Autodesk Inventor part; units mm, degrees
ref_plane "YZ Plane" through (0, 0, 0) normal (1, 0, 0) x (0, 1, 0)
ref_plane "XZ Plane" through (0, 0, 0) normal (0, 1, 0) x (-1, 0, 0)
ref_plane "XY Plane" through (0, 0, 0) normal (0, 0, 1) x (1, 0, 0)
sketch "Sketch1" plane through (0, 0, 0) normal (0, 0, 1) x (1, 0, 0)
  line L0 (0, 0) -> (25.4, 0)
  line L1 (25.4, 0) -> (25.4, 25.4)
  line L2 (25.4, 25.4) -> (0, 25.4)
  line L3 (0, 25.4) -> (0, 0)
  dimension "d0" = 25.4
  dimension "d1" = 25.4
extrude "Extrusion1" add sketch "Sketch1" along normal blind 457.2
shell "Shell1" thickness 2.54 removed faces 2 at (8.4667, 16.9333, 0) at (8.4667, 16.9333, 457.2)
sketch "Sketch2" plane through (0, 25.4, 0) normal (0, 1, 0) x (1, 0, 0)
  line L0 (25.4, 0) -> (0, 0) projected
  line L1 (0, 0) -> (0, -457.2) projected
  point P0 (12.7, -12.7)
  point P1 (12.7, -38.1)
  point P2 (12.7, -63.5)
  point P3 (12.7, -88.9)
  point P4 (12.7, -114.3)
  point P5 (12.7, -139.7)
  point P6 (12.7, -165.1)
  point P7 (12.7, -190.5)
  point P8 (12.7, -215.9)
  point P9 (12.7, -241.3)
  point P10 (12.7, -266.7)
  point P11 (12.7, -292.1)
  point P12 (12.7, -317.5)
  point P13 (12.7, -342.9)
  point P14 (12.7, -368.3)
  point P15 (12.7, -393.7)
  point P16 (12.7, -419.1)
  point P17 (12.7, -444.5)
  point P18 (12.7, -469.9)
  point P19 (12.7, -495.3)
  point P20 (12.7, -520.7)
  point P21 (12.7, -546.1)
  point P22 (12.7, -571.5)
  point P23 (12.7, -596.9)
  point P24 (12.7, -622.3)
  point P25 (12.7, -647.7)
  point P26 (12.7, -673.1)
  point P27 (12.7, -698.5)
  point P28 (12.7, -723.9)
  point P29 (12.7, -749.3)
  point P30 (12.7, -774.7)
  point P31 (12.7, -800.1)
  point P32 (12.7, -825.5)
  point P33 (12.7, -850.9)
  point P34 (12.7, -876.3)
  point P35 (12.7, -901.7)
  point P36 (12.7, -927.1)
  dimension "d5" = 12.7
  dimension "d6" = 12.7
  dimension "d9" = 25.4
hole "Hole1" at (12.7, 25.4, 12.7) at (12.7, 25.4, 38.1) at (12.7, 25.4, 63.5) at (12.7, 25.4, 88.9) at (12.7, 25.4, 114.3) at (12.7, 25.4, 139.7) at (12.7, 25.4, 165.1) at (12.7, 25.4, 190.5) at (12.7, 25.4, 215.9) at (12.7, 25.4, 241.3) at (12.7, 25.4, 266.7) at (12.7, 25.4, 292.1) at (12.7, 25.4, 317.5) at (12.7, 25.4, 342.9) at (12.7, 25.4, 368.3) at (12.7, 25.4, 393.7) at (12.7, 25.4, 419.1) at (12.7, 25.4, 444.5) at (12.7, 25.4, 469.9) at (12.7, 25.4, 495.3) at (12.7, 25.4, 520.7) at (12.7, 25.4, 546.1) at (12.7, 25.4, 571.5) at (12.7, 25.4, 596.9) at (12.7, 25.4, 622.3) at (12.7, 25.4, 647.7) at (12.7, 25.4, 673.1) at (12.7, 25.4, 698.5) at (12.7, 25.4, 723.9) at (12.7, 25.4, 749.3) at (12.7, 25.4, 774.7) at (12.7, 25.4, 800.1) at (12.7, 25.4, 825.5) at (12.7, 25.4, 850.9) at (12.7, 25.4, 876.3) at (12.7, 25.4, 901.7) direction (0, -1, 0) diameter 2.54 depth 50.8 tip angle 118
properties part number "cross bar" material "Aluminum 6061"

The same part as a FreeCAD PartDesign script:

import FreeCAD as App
import Part
import Sketcher

V = App.Vector
Q = App.Units.Quantity


def faces_at(feature, points):
    """Names of the faces that lie closest to the given points."""
    faces = feature.Shape.Faces
    near = lambda p: min(range(len(faces)), key=lambda i: faces[i].distToShape(Part.Vertex(*p))[0])
    return sorted({f"Face{near(p) + 1}" for p in points})


def add_polygon(sketch, points):
    """Adds a closed chain of lines whose ends are joined by coincident constraints."""
    first, n = sketch.GeometryCount, len(points)
    for a, b in zip(points, points[1:] + points[:1]):
        sketch.addGeometry(Part.LineSegment(App.Vector(*a, 0), App.Vector(*b, 0)), False)
    for i in range(n):
        sketch.addConstraint(Sketcher.Constraint("Coincident", first + i, 2, first + (i + 1) % n, 1))

doc = App.newDocument("Part")
body = doc.addObject("PartDesign::Body", "Body")

# Sketch on XY plane
sketch1 = doc.addObject("Sketcher::SketchObject", "Sketch")
body.addObject(sketch1)
sketch1.AttachmentSupport = (doc.XY_Plane, [""])
sketch1.MapMode = "FlatFace"
add_polygon(sketch1, [(0, 25), (0, 0), (25, 0), (25, 25)])  # lines 0-3
sketch1.addConstraint(Sketcher.Constraint("Vertical", 0))
sketch1.addConstraint(Sketcher.Constraint("Horizontal", 1))
sketch1.addConstraint(Sketcher.Constraint("Vertical", 2))
sketch1.addConstraint(Sketcher.Constraint("Horizontal", 3))
sketch1.addConstraint(Sketcher.Constraint("Coincident", 0, 2, -1, 1))
sketch1.addConstraint(Sketcher.Constraint("Equal", 3, 0))
sketch1.addConstraint(Sketcher.Constraint("DistanceX", 1, 1, 1, 2, Q("1 in")))
pad1 = doc.addObject("PartDesign::Pad", "Pad")
body.addObject(pad1)
pad1.Profile = sketch1
pad1.Length = Q("18 in")
doc.recompute()

thickness = doc.addObject("PartDesign::Thickness", "Thickness")
body.addObject(thickness)
thickness.Base = (pad1, faces_at(pad1, [(8.467, 16.933, 0), (8.467, 16.933, 457.2)]))
thickness.Value = Q("0.1 in")
thickness.Reversed = True
thickness.Join = "Intersection"

# Sketch on XZ plane
sketch2 = doc.addObject("Sketcher::SketchObject", "Sketch001")
body.addObject(sketch2)
sketch2.AttachmentSupport = (doc.XZ_Plane, [""])
sketch2.MapMode = "FlatFace"
sketch2.AttachmentOffset = App.Placement(V(0, 0, -1 * 25.4), App.Rotation())
sketch2.addGeometry(Part.Circle(V(12.7, 12.7, 0), V(0, 0, 1), 1.3), False)
sketch2.addGeometry(Part.Circle(V(12.7, 38.1, 0), V(0, 0, 1), 1.3), False)
sketch2.addGeometry(Part.Circle(V(12.7, 63.5, 0), V(0, 0, 1), 1.3), False)
sketch2.addGeometry(Part.Circle(V(12.7, 88.9, 0), V(0, 0, 1), 1.3), False)
sketch2.addGeometry(Part.Circle(V(12.7, 114.3, 0), V(0, 0, 1), 1.3), False)
sketch2.addGeometry(Part.Circle(V(12.7, 139.7, 0), V(0, 0, 1), 1.3), False)
sketch2.addGeometry(Part.Circle(V(12.7, 165.1, 0), V(0, 0, 1), 1.3), False)
sketch2.addGeometry(Part.Circle(V(12.7, 190.5, 0), V(0, 0, 1), 1.3), False)
sketch2.addGeometry(Part.Circle(V(12.7, 215.9, 0), V(0, 0, 1), 1.3), False)
sketch2.addGeometry(Part.Circle(V(12.7, 241.3, 0), V(0, 0, 1), 1.3), False)
sketch2.addGeometry(Part.Circle(V(12.7, 266.7, 0), V(0, 0, 1), 1.3), False)
sketch2.addGeometry(Part.Circle(V(12.7, 292.1, 0), V(0, 0, 1), 1.3), False)
sketch2.addGeometry(Part.Circle(V(12.7, 317.5, 0), V(0, 0, 1), 1.3), False)
sketch2.addGeometry(Part.Circle(V(12.7, 342.9, 0), V(0, 0, 1), 1.3), False)
sketch2.addGeometry(Part.Circle(V(12.7, 368.3, 0), V(0, 0, 1), 1.3), False)
sketch2.addGeometry(Part.Circle(V(12.7, 393.7, 0), V(0, 0, 1), 1.3), False)
sketch2.addGeometry(Part.Circle(V(12.7, 419.1, 0), V(0, 0, 1), 1.3), False)
sketch2.addGeometry(Part.Circle(V(12.7, 444.5, 0), V(0, 0, 1), 1.3), False)
sketch2.addGeometry(Part.Circle(V(12.7, 469.9, 0), V(0, 0, 1), 1.3), False)
sketch2.addGeometry(Part.Circle(V(12.7, 495.3, 0), V(0, 0, 1), 1.3), False)
sketch2.addGeometry(Part.Circle(V(12.7, 520.7, 0), V(0, 0, 1), 1.3), False)
sketch2.addGeometry(Part.Circle(V(12.7, 546.1, 0), V(0, 0, 1), 1.3), False)
sketch2.addGeometry(Part.Circle(V(12.7, 571.5, 0), V(0, 0, 1), 1.3), False)
sketch2.addGeometry(Part.Circle(V(12.7, 596.9, 0), V(0, 0, 1), 1.3), False)
sketch2.addGeometry(Part.Circle(V(12.7, 622.3, 0), V(0, 0, 1), 1.3), False)
sketch2.addGeometry(Part.Circle(V(12.7, 647.7, 0), V(0, 0, 1), 1.3), False)
sketch2.addGeometry(Part.Circle(V(12.7, 673.1, 0), V(0, 0, 1), 1.3), False)
sketch2.addGeometry(Part.Circle(V(12.7, 698.5, 0), V(0, 0, 1), 1.3), False)
sketch2.addGeometry(Part.Circle(V(12.7, 723.9, 0), V(0, 0, 1), 1.3), False)
sketch2.addGeometry(Part.Circle(V(12.7, 749.3, 0), V(0, 0, 1), 1.3), False)
sketch2.addGeometry(Part.Circle(V(12.7, 774.7, 0), V(0, 0, 1), 1.3), False)
sketch2.addGeometry(Part.Circle(V(12.7, 800.1, 0), V(0, 0, 1), 1.3), False)
sketch2.addGeometry(Part.Circle(V(12.7, 825.5, 0), V(0, 0, 1), 1.3), False)
sketch2.addGeometry(Part.Circle(V(12.7, 850.9, 0), V(0, 0, 1), 1.3), False)
sketch2.addGeometry(Part.Circle(V(12.7, 876.3, 0), V(0, 0, 1), 1.3), False)
sketch2.addGeometry(Part.Circle(V(12.7, 901.7, 0), V(0, 0, 1), 1.3), False)
sketch2.addConstraint(Sketcher.Constraint("Equal", 0, 1))
sketch2.addConstraint(Sketcher.Constraint("Equal", 1, 2))
sketch2.addConstraint(Sketcher.Constraint("Equal", 2, 3))
sketch2.addConstraint(Sketcher.Constraint("Equal", 3, 4))
sketch2.addConstraint(Sketcher.Constraint("Equal", 4, 5))
sketch2.addConstraint(Sketcher.Constraint("Equal", 5, 6))
sketch2.addConstraint(Sketcher.Constraint("Equal", 6, 7))
sketch2.addConstraint(Sketcher.Constraint("Equal", 7, 8))
sketch2.addConstraint(Sketcher.Constraint("Equal", 8, 9))
sketch2.addConstraint(Sketcher.Constraint("Equal", 9, 10))
sketch2.addConstraint(Sketcher.Constraint("Equal", 10, 11))
sketch2.addConstraint(Sketcher.Constraint("Equal", 11, 12))
sketch2.addConstraint(Sketcher.Constraint("Equal", 12, 13))
sketch2.addConstraint(Sketcher.Constraint("Equal", 13, 14))
sketch2.addConstraint(Sketcher.Constraint("Equal", 14, 15))
sketch2.addConstraint(Sketcher.Constraint("Equal", 15, 16))
sketch2.addConstraint(Sketcher.Constraint("Equal", 16, 17))
sketch2.addConstraint(Sketcher.Constraint("Equal", 17, 18))
sketch2.addConstraint(Sketcher.Constraint("Equal", 18, 19))
sketch2.addConstraint(Sketcher.Constraint("Equal", 19, 20))
sketch2.addConstraint(Sketcher.Constraint("Equal", 20, 21))
sketch2.addConstraint(Sketcher.Constraint("Equal", 21, 22))
sketch2.addConstraint(Sketcher.Constraint("Equal", 22, 23))
sketch2.addConstraint(Sketcher.Constraint("Equal", 23, 24))
sketch2.addConstraint(Sketcher.Constraint("Equal", 24, 25))
sketch2.addConstraint(Sketcher.Constraint("Equal", 25, 26))
sketch2.addConstraint(Sketcher.Constraint("Equal", 26, 27))
sketch2.addConstraint(Sketcher.Constraint("Equal", 27, 28))
sketch2.addConstraint(Sketcher.Constraint("Equal", 28, 29))
sketch2.addConstraint(Sketcher.Constraint("Equal", 29, 30))
sketch2.addConstraint(Sketcher.Constraint("Equal", 30, 31))
sketch2.addConstraint(Sketcher.Constraint("Equal", 31, 32))
sketch2.addConstraint(Sketcher.Constraint("Equal", 32, 33))
sketch2.addConstraint(Sketcher.Constraint("Equal", 33, 34))
sketch2.addConstraint(Sketcher.Constraint("Equal", 34, 35))
sketch2.addConstraint(Sketcher.Constraint("Vertical", 0, 3, 1, 3))
sketch2.addConstraint(Sketcher.Constraint("Vertical", 1, 3, 2, 3))
sketch2.addConstraint(Sketcher.Constraint("Vertical", 2, 3, 3, 3))
sketch2.addConstraint(Sketcher.Constraint("Vertical", 3, 3, 4, 3))
sketch2.addConstraint(Sketcher.Constraint("Vertical", 4, 3, 5, 3))
sketch2.addConstraint(Sketcher.Constraint("Vertical", 5, 3, 6, 3))
sketch2.addConstraint(Sketcher.Constraint("Vertical", 6, 3, 7, 3))
sketch2.addConstraint(Sketcher.Constraint("Vertical", 7, 3, 8, 3))
sketch2.addConstraint(Sketcher.Constraint("Vertical", 8, 3, 9, 3))
sketch2.addConstraint(Sketcher.Constraint("Vertical", 9, 3, 10, 3))
sketch2.addConstraint(Sketcher.Constraint("Vertical", 10, 3, 11, 3))
sketch2.addConstraint(Sketcher.Constraint("Vertical", 11, 3, 12, 3))
sketch2.addConstraint(Sketcher.Constraint("Vertical", 12, 3, 13, 3))
sketch2.addConstraint(Sketcher.Constraint("Vertical", 13, 3, 14, 3))
sketch2.addConstraint(Sketcher.Constraint("Vertical", 14, 3, 15, 3))
sketch2.addConstraint(Sketcher.Constraint("Vertical", 15, 3, 16, 3))
sketch2.addConstraint(Sketcher.Constraint("Vertical", 16, 3, 17, 3))
sketch2.addConstraint(Sketcher.Constraint("Vertical", 17, 3, 18, 3))
sketch2.addConstraint(Sketcher.Constraint("Vertical", 18, 3, 19, 3))
sketch2.addConstraint(Sketcher.Constraint("Vertical", 19, 3, 20, 3))
sketch2.addConstraint(Sketcher.Constraint("Vertical", 20, 3, 21, 3))
sketch2.addConstraint(Sketcher.Constraint("Vertical", 21, 3, 22, 3))
sketch2.addConstraint(Sketcher.Constraint("Vertical", 22, 3, 23, 3))
sketch2.addConstraint(Sketcher.Constraint("Vertical", 23, 3, 24, 3))
sketch2.addConstraint(Sketcher.Constraint("Vertical", 24, 3, 25, 3))
sketch2.addConstraint(Sketcher.Constraint("Vertical", 25, 3, 26, 3))
sketch2.addConstraint(Sketcher.Constraint("Vertical", 26, 3, 27, 3))
sketch2.addConstraint(Sketcher.Constraint("Vertical", 27, 3, 28, 3))
sketch2.addConstraint(Sketcher.Constraint("Vertical", 28, 3, 29, 3))
sketch2.addConstraint(Sketcher.Constraint("Vertical", 29, 3, 30, 3))
sketch2.addConstraint(Sketcher.Constraint("Vertical", 30, 3, 31, 3))
sketch2.addConstraint(Sketcher.Constraint("Vertical", 31, 3, 32, 3))
sketch2.addConstraint(Sketcher.Constraint("Vertical", 32, 3, 33, 3))
sketch2.addConstraint(Sketcher.Constraint("Vertical", 33, 3, 34, 3))
sketch2.addConstraint(Sketcher.Constraint("Vertical", 34, 3, 35, 3))
sketch2.addConstraint(Sketcher.Constraint("Diameter", 0, Q("0.1 in")))
sketch2.addConstraint(Sketcher.Constraint("DistanceY", 0, 3, 1, 3, Q("1 in")))
sketch2.addConstraint(Sketcher.Constraint("DistanceY", 1, 3, 2, 3, Q("1 in")))
sketch2.addConstraint(Sketcher.Constraint("DistanceY", 2, 3, 3, 3, Q("1 in")))
sketch2.addConstraint(Sketcher.Constraint("DistanceY", 3, 3, 4, 3, Q("1 in")))
sketch2.addConstraint(Sketcher.Constraint("DistanceY", 4, 3, 5, 3, Q("1 in")))
sketch2.addConstraint(Sketcher.Constraint("DistanceY", 5, 3, 6, 3, Q("1 in")))
sketch2.addConstraint(Sketcher.Constraint("DistanceY", 6, 3, 7, 3, Q("1 in")))
sketch2.addConstraint(Sketcher.Constraint("DistanceY", 7, 3, 8, 3, Q("1 in")))
sketch2.addConstraint(Sketcher.Constraint("DistanceY", 8, 3, 9, 3, Q("1 in")))
sketch2.addConstraint(Sketcher.Constraint("DistanceY", 9, 3, 10, 3, Q("1 in")))
sketch2.addConstraint(Sketcher.Constraint("DistanceY", 10, 3, 11, 3, Q("1 in")))
sketch2.addConstraint(Sketcher.Constraint("DistanceY", 11, 3, 12, 3, Q("1 in")))
sketch2.addConstraint(Sketcher.Constraint("DistanceY", 12, 3, 13, 3, Q("1 in")))
sketch2.addConstraint(Sketcher.Constraint("DistanceY", 13, 3, 14, 3, Q("1 in")))
sketch2.addConstraint(Sketcher.Constraint("DistanceY", 14, 3, 15, 3, Q("1 in")))
sketch2.addConstraint(Sketcher.Constraint("DistanceY", 15, 3, 16, 3, Q("1 in")))
sketch2.addConstraint(Sketcher.Constraint("DistanceY", 16, 3, 17, 3, Q("1 in")))
sketch2.addConstraint(Sketcher.Constraint("DistanceY", 17, 3, 18, 3, Q("1 in")))
sketch2.addConstraint(Sketcher.Constraint("DistanceY", 18, 3, 19, 3, Q("1 in")))
sketch2.addConstraint(Sketcher.Constraint("DistanceY", 19, 3, 20, 3, Q("1 in")))
sketch2.addConstraint(Sketcher.Constraint("DistanceY", 20, 3, 21, 3, Q("1 in")))
sketch2.addConstraint(Sketcher.Constraint("DistanceY", 21, 3, 22, 3, Q("1 in")))
sketch2.addConstraint(Sketcher.Constraint("DistanceY", 22, 3, 23, 3, Q("1 in")))
sketch2.addConstraint(Sketcher.Constraint("DistanceY", 23, 3, 24, 3, Q("1 in")))
sketch2.addConstraint(Sketcher.Constraint("DistanceY", 24, 3, 25, 3, Q("1 in")))
sketch2.addConstraint(Sketcher.Constraint("DistanceY", 25, 3, 26, 3, Q("1 in")))
sketch2.addConstraint(Sketcher.Constraint("DistanceY", 26, 3, 27, 3, Q("1 in")))
sketch2.addConstraint(Sketcher.Constraint("DistanceY", 27, 3, 28, 3, Q("1 in")))
sketch2.addConstraint(Sketcher.Constraint("DistanceY", 28, 3, 29, 3, Q("1 in")))
sketch2.addConstraint(Sketcher.Constraint("DistanceY", 29, 3, 30, 3, Q("1 in")))
sketch2.addConstraint(Sketcher.Constraint("DistanceY", 30, 3, 31, 3, Q("1 in")))
sketch2.addConstraint(Sketcher.Constraint("DistanceY", 31, 3, 32, 3, Q("1 in")))
sketch2.addConstraint(Sketcher.Constraint("DistanceY", 32, 3, 33, 3, Q("1 in")))
sketch2.addConstraint(Sketcher.Constraint("DistanceY", 33, 3, 34, 3, Q("1 in")))
sketch2.addConstraint(Sketcher.Constraint("DistanceY", 34, 3, 35, 3, Q("1 in")))
sketch2.addConstraint(Sketcher.Constraint("DistanceX", -1, 1, 0, 3, Q("0.5 in")))
sketch2.addConstraint(Sketcher.Constraint("DistanceY", -1, 1, 0, 3, Q("0.5 in")))
doc.recompute()
hole = doc.addObject("PartDesign::Hole", "Hole")
body.addObject(hole)
hole.Profile = sketch2
hole.ThreadType = "None"
hole.Diameter = Q("0.1 in")
hole.DepthType = "Dimension"
hole.Depth = Q("2 in")
hole.DrillPoint = "Angled"
hole.DrillPointAngle = 118
hole.Reversed = True

doc.recompute()
